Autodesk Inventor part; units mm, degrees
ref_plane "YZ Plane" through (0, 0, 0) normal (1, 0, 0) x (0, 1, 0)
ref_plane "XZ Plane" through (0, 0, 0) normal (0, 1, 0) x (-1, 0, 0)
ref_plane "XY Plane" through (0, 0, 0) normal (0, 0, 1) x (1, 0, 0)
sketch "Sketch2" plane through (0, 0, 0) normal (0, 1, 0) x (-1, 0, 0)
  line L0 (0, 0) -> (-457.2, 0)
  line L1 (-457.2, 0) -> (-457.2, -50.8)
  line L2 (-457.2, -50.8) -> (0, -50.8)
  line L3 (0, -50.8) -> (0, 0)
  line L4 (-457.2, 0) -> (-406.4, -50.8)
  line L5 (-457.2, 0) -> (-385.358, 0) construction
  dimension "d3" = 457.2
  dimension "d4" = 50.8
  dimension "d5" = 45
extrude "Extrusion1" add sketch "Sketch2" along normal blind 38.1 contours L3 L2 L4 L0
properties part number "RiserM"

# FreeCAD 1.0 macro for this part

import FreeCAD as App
import Part
import Sketcher
Q = App.Units.Quantity


def add_polygon(sketch, points):
    """Adds a closed chain of lines whose ends are joined by coincident constraints."""
    first, n = sketch.GeometryCount, len(points)
    for a, b in zip(points, points[1:] + points[:1]):
        sketch.addGeometry(Part.LineSegment(App.Vector(*a, 0), App.Vector(*b, 0)), False)
    for i in range(n):
        sketch.addConstraint(Sketcher.Constraint("Coincident", first + i, 2, first + (i + 1) % n, 1))

doc = App.newDocument("Part")
body = doc.addObject("PartDesign::Body", "Body")

# Sketch on XZ plane
sketch1 = body.newObject("Sketcher::SketchObject", "Sketch")
sketch1.AttachmentSupport = (doc.getObject("XZ_Plane"), [""])
sketch1.MapMode = "FlatFace"
add_polygon(sketch1, [(0, -51), (0, 0), (457, 0), (406, -51)])  # lines 0-3
sketch1.addConstraint([
    Sketcher.Constraint("Vertical", 0),
    Sketcher.Constraint("Horizontal", 1),
    Sketcher.Constraint("Horizontal", 3),
    Sketcher.Constraint("Coincident", 0, 2, -1, 1),
    Sketcher.Constraint("DistanceX", 1, 1, 1, 2, Q("18 in")),
    Sketcher.Constraint("DistanceY", 0, 1, 0, 2, Q("2 in")),
    Sketcher.Constraint("DistanceX", 2, 2, 1, 2, Q("2 in")),
])
pad1 = body.newObject("PartDesign::Pad", "Pad")
pad1.Profile = sketch1
pad1.Length = Q("1.5 in")
pad1.Reversed = True

doc.recompute()
